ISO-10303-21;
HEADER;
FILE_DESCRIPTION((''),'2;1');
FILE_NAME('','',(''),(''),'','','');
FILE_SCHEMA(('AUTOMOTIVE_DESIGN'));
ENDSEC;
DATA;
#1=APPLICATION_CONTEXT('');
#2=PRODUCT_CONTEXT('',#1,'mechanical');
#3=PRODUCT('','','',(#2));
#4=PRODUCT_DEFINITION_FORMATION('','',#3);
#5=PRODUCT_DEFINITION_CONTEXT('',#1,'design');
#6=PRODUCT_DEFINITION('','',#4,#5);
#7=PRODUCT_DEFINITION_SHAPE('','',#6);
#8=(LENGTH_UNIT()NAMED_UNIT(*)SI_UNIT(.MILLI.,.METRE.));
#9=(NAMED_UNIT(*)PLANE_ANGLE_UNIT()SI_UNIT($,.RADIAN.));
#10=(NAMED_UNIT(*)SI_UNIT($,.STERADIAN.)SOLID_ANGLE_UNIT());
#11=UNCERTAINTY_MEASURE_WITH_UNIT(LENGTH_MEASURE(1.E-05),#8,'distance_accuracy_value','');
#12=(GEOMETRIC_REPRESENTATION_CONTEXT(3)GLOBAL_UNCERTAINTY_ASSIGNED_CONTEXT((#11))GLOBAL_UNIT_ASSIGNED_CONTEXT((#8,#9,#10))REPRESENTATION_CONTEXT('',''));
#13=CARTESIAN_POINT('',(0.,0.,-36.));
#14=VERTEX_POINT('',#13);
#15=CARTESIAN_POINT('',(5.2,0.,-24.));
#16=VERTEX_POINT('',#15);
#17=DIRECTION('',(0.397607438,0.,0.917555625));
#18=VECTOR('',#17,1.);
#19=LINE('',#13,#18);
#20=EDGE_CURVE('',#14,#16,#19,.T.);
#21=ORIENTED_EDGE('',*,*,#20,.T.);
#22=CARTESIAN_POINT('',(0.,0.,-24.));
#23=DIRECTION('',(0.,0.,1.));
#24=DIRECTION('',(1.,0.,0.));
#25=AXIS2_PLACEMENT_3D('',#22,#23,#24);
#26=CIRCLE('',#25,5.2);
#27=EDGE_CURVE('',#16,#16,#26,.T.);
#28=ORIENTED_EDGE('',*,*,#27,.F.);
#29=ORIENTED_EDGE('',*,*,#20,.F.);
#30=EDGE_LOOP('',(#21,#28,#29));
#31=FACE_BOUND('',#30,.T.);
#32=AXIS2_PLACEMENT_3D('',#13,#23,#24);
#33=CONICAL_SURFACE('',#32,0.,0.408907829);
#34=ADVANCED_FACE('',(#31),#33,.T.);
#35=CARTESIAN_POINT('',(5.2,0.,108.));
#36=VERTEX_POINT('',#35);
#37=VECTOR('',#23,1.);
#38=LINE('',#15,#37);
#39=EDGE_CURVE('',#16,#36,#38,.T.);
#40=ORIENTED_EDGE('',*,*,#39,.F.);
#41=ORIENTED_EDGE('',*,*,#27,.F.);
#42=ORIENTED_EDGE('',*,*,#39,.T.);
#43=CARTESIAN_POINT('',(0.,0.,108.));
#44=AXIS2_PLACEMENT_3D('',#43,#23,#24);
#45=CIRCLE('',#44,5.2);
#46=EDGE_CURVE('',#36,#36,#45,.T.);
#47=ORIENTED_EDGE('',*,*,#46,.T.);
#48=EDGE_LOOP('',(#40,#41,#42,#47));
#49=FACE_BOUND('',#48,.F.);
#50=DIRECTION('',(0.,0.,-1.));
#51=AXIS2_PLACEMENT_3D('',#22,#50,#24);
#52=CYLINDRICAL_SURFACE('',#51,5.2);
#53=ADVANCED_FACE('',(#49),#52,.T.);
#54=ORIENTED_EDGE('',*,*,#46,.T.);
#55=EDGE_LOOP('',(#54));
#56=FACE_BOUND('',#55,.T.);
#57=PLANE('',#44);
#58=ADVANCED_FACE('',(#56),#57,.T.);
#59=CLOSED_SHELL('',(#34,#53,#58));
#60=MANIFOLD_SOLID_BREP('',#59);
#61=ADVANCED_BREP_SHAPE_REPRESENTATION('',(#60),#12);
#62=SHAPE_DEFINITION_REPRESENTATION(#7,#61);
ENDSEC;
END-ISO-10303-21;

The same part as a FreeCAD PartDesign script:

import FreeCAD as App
import Part
import Sketcher

V = App.Vector


def add_polygon(sketch, points):
    """Adds a closed chain of lines whose ends are joined by coincident constraints."""
    first, n = sketch.GeometryCount, len(points)
    for a, b in zip(points, points[1:] + points[:1]):
        sketch.addGeometry(Part.LineSegment(App.Vector(*a, 0), App.Vector(*b, 0)), False)
    for i in range(n):
        sketch.addConstraint(Sketcher.Constraint("Coincident", first + i, 2, first + (i + 1) % n, 1))

doc = App.newDocument("Part")
body = doc.addObject("PartDesign::Body", "Body")

# Sketch on XZ plane
sketch1 = body.newObject("Sketcher::SketchObject", "Sketch")
sketch1.AttachmentSupport = (doc.getObject("XZ_Plane"), [""])
sketch1.MapMode = "FlatFace"
add_polygon(sketch1, [(0, -12), (5.2, 0), (0, 0)])  # lines 0-2
sketch1.addConstraint(Sketcher.Constraint("Horizontal", 1))
sketch1.addConstraint(Sketcher.Constraint("Vertical", 2))
sketch1.addConstraint(Sketcher.Constraint("Coincident", 1, 2, -1, 1))
sketch1.addConstraint(Sketcher.Constraint("DistanceY", 2, 2, 2, 1, 12.0))
sketch1.addConstraint(Sketcher.Constraint("DistanceX", 1, 2, 1, 1, 5.2))
revolution = body.newObject("PartDesign::Revolution", "Revolution")
revolution.Profile = sketch1
revolution.ReferenceAxis = (sketch1, ["V_Axis"])
revolution.Angle = 360
body2 = doc.addObject("PartDesign::Body", "Body001")

# Sketch on XY plane
sketch2 = body2.newObject("Sketcher::SketchObject", "Sketch001")
sketch2.AttachmentSupport = (doc.getObject("XY_Plane001"), [""])
sketch2.MapMode = "FlatFace"
sketch2.addGeometry(Part.Circle(V(0, 0, 0), V(0, 0, 1), 5.2), False)
sketch2.addConstraint(Sketcher.Constraint("Coincident", 0, 3, -1, 1))
sketch2.addConstraint(Sketcher.Constraint("Diameter", 0, 10.4))
pad1 = body2.newObject("PartDesign::Pad", "Pad")
pad1.Profile = sketch2
pad1.Length = 132
doc.recompute()

boolean = body2.newObject("PartDesign::Boolean", "Boolean")
boolean.Type = "Fuse"
boolean.addObjects([body])
body3 = doc.addObject("PartDesign::Body", "Body002")
doc.recompute()

body2.Placement = App.Placement(V(0, 0, -24), App.Rotation(V(0, 0, 1), 0))
boolean2 = body3.newObject("PartDesign::Boolean", "Boolean001")
boolean2.Type = "Fuse"
boolean2.addObjects([body2])

doc.recompute()
